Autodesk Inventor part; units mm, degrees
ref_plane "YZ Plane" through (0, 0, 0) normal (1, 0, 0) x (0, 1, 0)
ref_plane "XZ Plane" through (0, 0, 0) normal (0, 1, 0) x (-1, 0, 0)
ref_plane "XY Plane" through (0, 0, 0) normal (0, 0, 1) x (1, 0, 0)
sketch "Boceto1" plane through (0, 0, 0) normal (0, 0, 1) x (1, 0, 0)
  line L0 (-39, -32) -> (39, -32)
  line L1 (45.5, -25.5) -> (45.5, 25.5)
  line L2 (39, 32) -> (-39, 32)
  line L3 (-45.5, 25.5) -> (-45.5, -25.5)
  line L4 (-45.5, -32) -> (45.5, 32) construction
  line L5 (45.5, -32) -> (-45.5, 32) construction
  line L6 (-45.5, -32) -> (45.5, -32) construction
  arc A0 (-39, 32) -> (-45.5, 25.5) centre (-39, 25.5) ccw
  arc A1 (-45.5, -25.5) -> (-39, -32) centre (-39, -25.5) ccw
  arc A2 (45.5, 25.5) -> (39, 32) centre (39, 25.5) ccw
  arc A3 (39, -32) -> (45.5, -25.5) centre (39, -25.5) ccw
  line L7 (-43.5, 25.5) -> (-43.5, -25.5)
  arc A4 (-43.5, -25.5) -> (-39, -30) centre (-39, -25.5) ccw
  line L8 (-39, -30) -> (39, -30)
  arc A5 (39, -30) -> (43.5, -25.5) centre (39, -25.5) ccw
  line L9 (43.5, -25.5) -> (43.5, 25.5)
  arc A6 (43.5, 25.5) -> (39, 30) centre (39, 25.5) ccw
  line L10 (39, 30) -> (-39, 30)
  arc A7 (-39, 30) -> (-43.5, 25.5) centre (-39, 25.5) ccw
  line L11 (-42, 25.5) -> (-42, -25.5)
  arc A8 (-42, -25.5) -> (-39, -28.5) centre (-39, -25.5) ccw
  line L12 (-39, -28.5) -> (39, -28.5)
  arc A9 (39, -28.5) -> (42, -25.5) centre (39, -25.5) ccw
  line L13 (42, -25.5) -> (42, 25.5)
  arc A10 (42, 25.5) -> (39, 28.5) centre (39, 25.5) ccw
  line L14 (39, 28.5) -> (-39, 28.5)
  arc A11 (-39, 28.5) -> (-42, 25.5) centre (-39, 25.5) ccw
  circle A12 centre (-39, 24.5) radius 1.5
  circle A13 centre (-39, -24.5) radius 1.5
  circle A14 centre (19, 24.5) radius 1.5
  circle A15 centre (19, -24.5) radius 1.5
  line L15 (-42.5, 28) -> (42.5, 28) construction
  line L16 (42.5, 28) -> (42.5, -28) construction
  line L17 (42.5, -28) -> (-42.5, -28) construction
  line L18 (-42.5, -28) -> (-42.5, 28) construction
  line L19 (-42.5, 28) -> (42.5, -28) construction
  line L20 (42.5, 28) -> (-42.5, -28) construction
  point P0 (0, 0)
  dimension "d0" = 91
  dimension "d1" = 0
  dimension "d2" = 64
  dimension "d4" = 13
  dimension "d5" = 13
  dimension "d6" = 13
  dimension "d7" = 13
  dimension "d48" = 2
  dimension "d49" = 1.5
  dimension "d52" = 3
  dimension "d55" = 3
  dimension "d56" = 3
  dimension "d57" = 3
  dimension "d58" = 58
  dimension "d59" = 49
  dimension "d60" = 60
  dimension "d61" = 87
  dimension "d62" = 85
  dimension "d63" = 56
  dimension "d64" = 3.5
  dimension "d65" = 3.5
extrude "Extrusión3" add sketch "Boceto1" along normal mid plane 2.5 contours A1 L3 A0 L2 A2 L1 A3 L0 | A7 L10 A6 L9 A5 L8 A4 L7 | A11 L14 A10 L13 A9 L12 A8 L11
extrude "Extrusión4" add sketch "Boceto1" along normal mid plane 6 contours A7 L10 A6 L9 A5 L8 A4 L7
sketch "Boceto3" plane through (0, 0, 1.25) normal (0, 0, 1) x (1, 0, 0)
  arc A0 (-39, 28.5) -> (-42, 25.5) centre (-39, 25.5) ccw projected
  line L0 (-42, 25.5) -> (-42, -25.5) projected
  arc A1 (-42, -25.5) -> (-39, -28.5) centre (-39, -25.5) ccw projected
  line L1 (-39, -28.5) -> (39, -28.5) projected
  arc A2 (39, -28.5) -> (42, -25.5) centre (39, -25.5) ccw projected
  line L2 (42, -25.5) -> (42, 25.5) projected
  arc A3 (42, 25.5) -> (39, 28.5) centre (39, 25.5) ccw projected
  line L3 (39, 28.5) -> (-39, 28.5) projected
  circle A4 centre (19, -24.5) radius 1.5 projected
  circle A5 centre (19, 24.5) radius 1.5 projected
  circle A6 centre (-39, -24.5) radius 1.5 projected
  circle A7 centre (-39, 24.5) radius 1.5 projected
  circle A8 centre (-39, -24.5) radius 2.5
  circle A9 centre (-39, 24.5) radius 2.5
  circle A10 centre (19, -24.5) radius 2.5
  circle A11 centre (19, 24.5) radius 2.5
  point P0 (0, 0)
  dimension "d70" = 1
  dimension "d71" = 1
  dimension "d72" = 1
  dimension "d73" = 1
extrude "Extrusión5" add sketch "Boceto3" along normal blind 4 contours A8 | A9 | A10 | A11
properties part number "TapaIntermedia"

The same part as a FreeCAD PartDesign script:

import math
import FreeCAD as App
import Part
import Sketcher
from FreeCAD import Vector

doc = App.newDocument("Part")
body = doc.addObject("PartDesign::Body", "Body")

# Sketch on XY plane
sketch1 = doc.addObject("Sketcher::SketchObject", "Sketch")
body.addObject(sketch1)
sketch1.AttachmentSupport = (doc.XY_Plane, [""])
sketch1.MapMode = "FlatFace"
sketch1.addGeometry(Part.ArcOfCircle(Part.Circle(Vector(-39, -25.5, 0), Vector(0, 0, 1), 6.5), math.radians(180), math.radians(270)), False)
sketch1.addGeometry(Part.LineSegment(Vector(-39, -32, 0), Vector(39, -32, 0)), False)
sketch1.addGeometry(Part.ArcOfCircle(Part.Circle(Vector(39, -25.5, 0), Vector(0, 0, 1), 6.5), math.radians(-90), math.radians(0)), False)
sketch1.addGeometry(Part.LineSegment(Vector(45.5, -25.5, 0), Vector(45.5, 25.5, 0)), False)
sketch1.addGeometry(Part.ArcOfCircle(Part.Circle(Vector(39, 25.5, 0), Vector(0, 0, 1), 6.5), math.radians(0), math.radians(90)), False)
sketch1.addGeometry(Part.LineSegment(Vector(39, 32, 0), Vector(-39, 32, 0)), False)
sketch1.addGeometry(Part.ArcOfCircle(Part.Circle(Vector(-39, 25.5, 0), Vector(0, 0, 1), 6.5), math.radians(90), math.radians(180)), False)
sketch1.addGeometry(Part.LineSegment(Vector(-45.5, 25.5, 0), Vector(-45.5, -25.5, 0)), False)
sketch1.addGeometry(Part.Circle(Vector(-39, -24.5, 0), Vector(0, 0, 1), 1.5), False)
sketch1.addGeometry(Part.Circle(Vector(19, -24.5, 0), Vector(0, 0, 1), 1.5), False)
sketch1.addGeometry(Part.Circle(Vector(-39, 24.5, 0), Vector(0, 0, 1), 1.5), False)
sketch1.addGeometry(Part.Circle(Vector(19, 24.5, 0), Vector(0, 0, 1), 1.5), False)
sketch1.addConstraint(Sketcher.Constraint("Tangent", 0, 2, 1, 1))
sketch1.addConstraint(Sketcher.Constraint("Tangent", 1, 2, 2, 1))
sketch1.addConstraint(Sketcher.Constraint("Tangent", 2, 2, 3, 1))
sketch1.addConstraint(Sketcher.Constraint("Tangent", 3, 2, 4, 1))
sketch1.addConstraint(Sketcher.Constraint("Tangent", 4, 2, 5, 1))
sketch1.addConstraint(Sketcher.Constraint("Tangent", 5, 2, 6, 1))
sketch1.addConstraint(Sketcher.Constraint("Tangent", 6, 2, 7, 1))
sketch1.addConstraint(Sketcher.Constraint("Tangent", 7, 2, 0, 1))
sketch1.addConstraint(Sketcher.Constraint("Horizontal", 1))
sketch1.addConstraint(Sketcher.Constraint("Vertical", 3))
sketch1.addConstraint(Sketcher.Constraint("Horizontal", 5))
sketch1.addConstraint(Sketcher.Constraint("Vertical", 7))
sketch1.addConstraint(Sketcher.Constraint("Equal", 0, 2))
sketch1.addConstraint(Sketcher.Constraint("Equal", 2, 4))
sketch1.addConstraint(Sketcher.Constraint("Equal", 4, 6))
sketch1.addConstraint(Sketcher.Constraint("Equal", 8, 9))
sketch1.addConstraint(Sketcher.Constraint("Equal", 9, 10))
sketch1.addConstraint(Sketcher.Constraint("Equal", 10, 11))
sketch1.addConstraint(Sketcher.Constraint("Symmetric", 0, 3, 4, 3, -1, 1))
sketch1.addConstraint(Sketcher.Constraint("Symmetric", 8, 3, 10, 3, -1))
sketch1.addConstraint(Sketcher.Constraint("Symmetric", 9, 3, 11, 3, -1))
sketch1.addConstraint(Sketcher.Constraint("Horizontal", 8, 3, 9, 3))
sketch1.addConstraint(Sketcher.Constraint("Vertical", 6, 3, 8, 3))
sketch1.addConstraint(Sketcher.Constraint("Diameter", 8, 3.0))
sketch1.addConstraint(Sketcher.Constraint("Radius", 0, 6.5))
sketch1.addConstraint(Sketcher.Constraint("DistanceX", 8, 3, 9, 3, 58.0))
sketch1.addConstraint(Sketcher.Constraint("DistanceY", 8, 3, 10, 3, 49.0))
sketch1.addConstraint(Sketcher.Constraint("DistanceX", 1, 1, 1, 2, 78.0))
sketch1.addConstraint(Sketcher.Constraint("DistanceY", 3, 1, 3, 2, 51.0))
pad1 = doc.addObject("PartDesign::Pad", "Pad")
body.addObject(pad1)
pad1.Profile = sketch1
pad1.Length = 2.5
pad1.Midplane = True

# Sketch on XY plane
sketch2 = doc.addObject("Sketcher::SketchObject", "Sketch001")
body.addObject(sketch2)
sketch2.AttachmentSupport = (doc.XY_Plane, [""])
sketch2.MapMode = "FlatFace"
sketch2.addGeometry(Part.ArcOfCircle(Part.Circle(Vector(-39, 25.5, 0), Vector(0, 0, 1), 4.5), math.radians(90), math.radians(180)), False)
sketch2.addGeometry(Part.LineSegment(Vector(-43.5, 25.5, 0), Vector(-43.5, -25.5, 0)), False)
sketch2.addGeometry(Part.ArcOfCircle(Part.Circle(Vector(-39, -25.5, 0), Vector(0, 0, 1), 4.5), math.radians(180), math.radians(270)), False)
sketch2.addGeometry(Part.LineSegment(Vector(-39, -30, 0), Vector(39, -30, 0)), False)
sketch2.addGeometry(Part.ArcOfCircle(Part.Circle(Vector(39, -25.5, 0), Vector(0, 0, 1), 4.5), math.radians(-90), math.radians(0)), False)
sketch2.addGeometry(Part.LineSegment(Vector(43.5, -25.5, 0), Vector(43.5, 25.5, 0)), False)
sketch2.addGeometry(Part.ArcOfCircle(Part.Circle(Vector(39, 25.5, 0), Vector(0, 0, 1), 4.5), math.radians(0), math.radians(90)), False)
sketch2.addGeometry(Part.LineSegment(Vector(39, 30, 0), Vector(-39, 30, 0)), False)
sketch2.addGeometry(Part.LineSegment(Vector(-42, -25.5, 0), Vector(-42, 25.5, 0)), False)
sketch2.addGeometry(Part.ArcOfCircle(Part.Circle(Vector(-39, 25.5, 0), Vector(0, 0, 1), 3), math.radians(90), math.radians(180)), False)
sketch2.addGeometry(Part.LineSegment(Vector(-39, 28.5, 0), Vector(39, 28.5, 0)), False)
sketch2.addGeometry(Part.ArcOfCircle(Part.Circle(Vector(39, 25.5, 0), Vector(0, 0, 1), 3), math.radians(0), math.radians(90)), False)
sketch2.addGeometry(Part.LineSegment(Vector(42, 25.5, 0), Vector(42, -25.5, 0)), False)
sketch2.addGeometry(Part.ArcOfCircle(Part.Circle(Vector(39, -25.5, 0), Vector(0, 0, 1), 3), math.radians(-90), math.radians(0)), False)
sketch2.addGeometry(Part.LineSegment(Vector(39, -28.5, 0), Vector(-39, -28.5, 0)), False)
sketch2.addGeometry(Part.ArcOfCircle(Part.Circle(Vector(-39, -25.5, 0), Vector(0, 0, 1), 3), math.radians(180), math.radians(270)), False)
sketch2.addConstraint(Sketcher.Constraint("Tangent", 0, 2, 1, 1))
sketch2.addConstraint(Sketcher.Constraint("Tangent", 1, 2, 2, 1))
sketch2.addConstraint(Sketcher.Constraint("Tangent", 2, 2, 3, 1))
sketch2.addConstraint(Sketcher.Constraint("Tangent", 3, 2, 4, 1))
sketch2.addConstraint(Sketcher.Constraint("Tangent", 4, 2, 5, 1))
sketch2.addConstraint(Sketcher.Constraint("Tangent", 5, 2, 6, 1))
sketch2.addConstraint(Sketcher.Constraint("Tangent", 6, 2, 7, 1))
sketch2.addConstraint(Sketcher.Constraint("Tangent", 7, 2, 0, 1))
sketch2.addConstraint(Sketcher.Constraint("Tangent", 8, 2, 9, 2))
sketch2.addConstraint(Sketcher.Constraint("Tangent", 9, 1, 10, 1))
sketch2.addConstraint(Sketcher.Constraint("Tangent", 10, 2, 11, 2))
sketch2.addConstraint(Sketcher.Constraint("Tangent", 11, 1, 12, 1))
sketch2.addConstraint(Sketcher.Constraint("Tangent", 12, 2, 13, 2))
sketch2.addConstraint(Sketcher.Constraint("Tangent", 13, 1, 14, 1))
sketch2.addConstraint(Sketcher.Constraint("Tangent", 14, 2, 15, 2))
sketch2.addConstraint(Sketcher.Constraint("Tangent", 15, 1, 8, 1))
sketch2.addConstraint(Sketcher.Constraint("Vertical", 1))
sketch2.addConstraint(Sketcher.Constraint("Horizontal", 3))
sketch2.addConstraint(Sketcher.Constraint("Vertical", 5))
sketch2.addConstraint(Sketcher.Constraint("Horizontal", 7))
sketch2.addConstraint(Sketcher.Constraint("Vertical", 8))
sketch2.addConstraint(Sketcher.Constraint("Horizontal", 10))
sketch2.addConstraint(Sketcher.Constraint("Vertical", 12))
sketch2.addConstraint(Sketcher.Constraint("Horizontal", 14))
sketch2.addConstraint(Sketcher.Constraint("Coincident", 9, 3, 0, 3))
sketch2.addConstraint(Sketcher.Constraint("Coincident", 11, 3, 6, 3))
sketch2.addConstraint(Sketcher.Constraint("Coincident", 13, 3, 4, 3))
sketch2.addConstraint(Sketcher.Constraint("Equal", 0, 2))
sketch2.addConstraint(Sketcher.Constraint("Equal", 2, 4))
sketch2.addConstraint(Sketcher.Constraint("Equal", 4, 6))
sketch2.addConstraint(Sketcher.Constraint("Equal", 13, 15))
sketch2.addConstraint(Sketcher.Constraint("Symmetric", 0, 3, 4, 3, -1, 1))
sketch2.addConstraint(Sketcher.Constraint("Radius", 9, 3.0))
sketch2.addConstraint(Sketcher.Constraint("Radius", 0, 4.5))
sketch2.addConstraint(Sketcher.Constraint("DistanceX", 3, 1, 3, 2, 78.0))
sketch2.addConstraint(Sketcher.Constraint("DistanceY", 1, 2, 1, 1, 51.0))
pad2 = doc.addObject("PartDesign::Pad", "Pad001")
body.addObject(pad2)
pad2.Profile = sketch2
pad2.Length = 6
pad2.Midplane = True

# Sketch on XY plane
sketch3 = doc.addObject("Sketcher::SketchObject", "Sketch002")
body.addObject(sketch3)
sketch3.AttachmentSupport = (doc.XY_Plane, [""])
sketch3.MapMode = "FlatFace"
sketch3.AttachmentOffset = App.Placement(Vector(0, 0, 1.25), App.Rotation())
sketch3.addGeometry(Part.Circle(Vector(-39, -24.5, 0), Vector(0, 0, 1), 2.5), False)
sketch3.addGeometry(Part.Circle(Vector(-39, -24.5, 0), Vector(0, 0, 1), 1.5), False)
sketch3.addGeometry(Part.Circle(Vector(-39, 24.5, 0), Vector(0, 0, 1), 2.5), False)
sketch3.addGeometry(Part.Circle(Vector(-39, 24.5, 0), Vector(0, 0, 1), 1.5), False)
sketch3.addGeometry(Part.Circle(Vector(19, -24.5, 0), Vector(0, 0, 1), 2.5), False)
sketch3.addGeometry(Part.Circle(Vector(19, -24.5, 0), Vector(0, 0, 1), 1.5), False)
sketch3.addGeometry(Part.Circle(Vector(19, 24.5, 0), Vector(0, 0, 1), 2.5), False)
sketch3.addGeometry(Part.Circle(Vector(19, 24.5, 0), Vector(0, 0, 1), 1.5), False)
sketch3.addConstraint(Sketcher.Constraint("Coincident", 1, 3, 0, 3))
sketch3.addConstraint(Sketcher.Constraint("Coincident", 3, 3, 2, 3))
sketch3.addConstraint(Sketcher.Constraint("Coincident", 5, 3, 4, 3))
sketch3.addConstraint(Sketcher.Constraint("Coincident", 7, 3, 6, 3))
sketch3.addConstraint(Sketcher.Constraint("Equal", 0, 2))
sketch3.addConstraint(Sketcher.Constraint("Equal", 1, 3))
sketch3.addConstraint(Sketcher.Constraint("Equal", 2, 4))
sketch3.addConstraint(Sketcher.Constraint("Equal", 3, 5))
sketch3.addConstraint(Sketcher.Constraint("Equal", 4, 6))
sketch3.addConstraint(Sketcher.Constraint("Equal", 5, 7))
sketch3.addConstraint(Sketcher.Constraint("Symmetric", 0, 3, 2, 3, -1))
sketch3.addConstraint(Sketcher.Constraint("Symmetric", 4, 3, 6, 3, -1))
sketch3.addConstraint(Sketcher.Constraint("Horizontal", 1, 3, 4, 3))
sketch3.addConstraint(Sketcher.Constraint("Diameter", 0, 5.0))
sketch3.addConstraint(Sketcher.Constraint("Diameter", 1, 3.0))
sketch3.addConstraint(Sketcher.Constraint("DistanceX", 0, 3, -1, 1, 39.0))
sketch3.addConstraint(Sketcher.Constraint("DistanceX", -1, 1, 4, 3, 19.0))
sketch3.addConstraint(Sketcher.Constraint("DistanceY", 0, 3, 2, 3, 49.0))
pad3 = doc.addObject("PartDesign::Pad", "Pad002")
body.addObject(pad3)
pad3.Profile = sketch3
pad3.Length = 4

doc.recompute()
